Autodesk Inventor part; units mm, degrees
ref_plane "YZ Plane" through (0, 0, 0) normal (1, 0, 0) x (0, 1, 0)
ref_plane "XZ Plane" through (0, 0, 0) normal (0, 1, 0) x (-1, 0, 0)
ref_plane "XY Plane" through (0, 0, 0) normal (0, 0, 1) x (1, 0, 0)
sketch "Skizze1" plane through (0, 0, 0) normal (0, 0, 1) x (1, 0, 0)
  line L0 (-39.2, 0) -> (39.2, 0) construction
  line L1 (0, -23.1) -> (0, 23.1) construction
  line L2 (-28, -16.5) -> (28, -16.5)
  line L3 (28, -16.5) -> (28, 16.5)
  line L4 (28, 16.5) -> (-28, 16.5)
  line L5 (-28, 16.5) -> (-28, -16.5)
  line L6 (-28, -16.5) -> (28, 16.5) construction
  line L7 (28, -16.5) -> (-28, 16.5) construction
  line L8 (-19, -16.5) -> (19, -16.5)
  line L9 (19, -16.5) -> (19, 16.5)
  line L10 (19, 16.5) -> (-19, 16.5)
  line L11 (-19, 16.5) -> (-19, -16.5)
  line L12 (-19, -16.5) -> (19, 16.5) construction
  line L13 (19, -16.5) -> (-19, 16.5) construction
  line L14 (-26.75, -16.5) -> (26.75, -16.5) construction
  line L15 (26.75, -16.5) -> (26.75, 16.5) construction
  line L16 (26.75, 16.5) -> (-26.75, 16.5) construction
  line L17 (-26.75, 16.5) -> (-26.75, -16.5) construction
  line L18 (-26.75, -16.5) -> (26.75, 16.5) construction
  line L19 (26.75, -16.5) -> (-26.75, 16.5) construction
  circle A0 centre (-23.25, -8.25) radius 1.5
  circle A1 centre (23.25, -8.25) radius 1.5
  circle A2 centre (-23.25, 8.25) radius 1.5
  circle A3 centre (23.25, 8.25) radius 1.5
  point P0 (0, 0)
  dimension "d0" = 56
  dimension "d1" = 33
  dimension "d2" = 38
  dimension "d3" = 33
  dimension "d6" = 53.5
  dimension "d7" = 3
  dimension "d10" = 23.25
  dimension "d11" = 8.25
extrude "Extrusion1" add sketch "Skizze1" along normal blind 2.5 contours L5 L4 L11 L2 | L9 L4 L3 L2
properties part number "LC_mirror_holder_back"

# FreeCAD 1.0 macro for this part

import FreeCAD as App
import Part
import Sketcher
from FreeCAD import Vector
Q = App.Units.Quantity

doc = App.newDocument("Part")
body = doc.addObject("PartDesign::Body", "Body")
body.AllowCompound = True

# Sketch on XY plane
sketch1 = body.newObject("Sketcher::SketchObject", "Sketch")
sketch1.AttachmentSupport = (doc.getObject("XY_Plane"), [""])
sketch1.MapMode = "FlatFace"
sketch1.addGeometry([
    Part.LineSegment(Vector(-28, 16.5, 0), Vector(-28, -16.5, 0)),  # 0
    Part.LineSegment(Vector(-28, -16.5, 0), Vector(-19, -16.5, 0)),  # 1
    Part.LineSegment(Vector(-19, -16.5, 0), Vector(-19, 16.5, 0)),  # 2
    Part.LineSegment(Vector(-19, 16.5, 0), Vector(-28, 16.5, 0)),  # 3
    Part.Circle(Vector(-23.2, -8.2, 0), Vector(0, 0, 1), 1.5),  # 4
    Part.Circle(Vector(-23.2, 8.2, 0), Vector(0, 0, 1), 1.5),  # 5
    Part.LineSegment(Vector(19, 16.5, 0), Vector(19, -16.5, 0)),  # 6
    Part.LineSegment(Vector(19, -16.5, 0), Vector(28, -16.5, 0)),  # 7
    Part.LineSegment(Vector(28, -16.5, 0), Vector(28, 16.5, 0)),  # 8
    Part.LineSegment(Vector(28, 16.5, 0), Vector(19, 16.5, 0)),  # 9
    Part.Circle(Vector(23.2, -8.2, 0), Vector(0, 0, 1), 1.5),  # 10
    Part.Circle(Vector(23.2, 8.2, 0), Vector(0, 0, 1), 1.5),  # 11
], False)
sketch1.addConstraint([
    Sketcher.Constraint("Coincident", 0, 2, 1, 1),
    Sketcher.Constraint("Coincident", 1, 2, 2, 1),
    Sketcher.Constraint("Coincident", 2, 2, 3, 1),
    Sketcher.Constraint("Coincident", 3, 2, 0, 1),
    Sketcher.Constraint("Coincident", 6, 2, 7, 1),
    Sketcher.Constraint("Coincident", 7, 2, 8, 1),
    Sketcher.Constraint("Coincident", 8, 2, 9, 1),
    Sketcher.Constraint("Coincident", 9, 2, 6, 1),
    Sketcher.Constraint("Vertical", 0),
    Sketcher.Constraint("Horizontal", 1),
    Sketcher.Constraint("Vertical", 2),
    Sketcher.Constraint("Horizontal", 3),
    Sketcher.Constraint("Vertical", 6),
    Sketcher.Constraint("Horizontal", 7),
    Sketcher.Constraint("Vertical", 8),
    Sketcher.Constraint("Horizontal", 9),
    Sketcher.Constraint("Equal", 4, 5),
    Sketcher.Constraint("Equal", 5, 10),
    Sketcher.Constraint("Equal", 10, 11),
    Sketcher.Constraint("Symmetric", 5, 3, 10, 3, -1, 1),
    Sketcher.Constraint("Symmetric", 4, 3, 11, 3, -1, 1),
    Sketcher.Constraint("Symmetric", 2, 2, 6, 2, -1, 1),
    Sketcher.Constraint("Symmetric", 0, 2, 8, 2, -1, 1),
    Sketcher.Constraint("Symmetric", 4, 3, 10, 3, -2),
    Sketcher.Constraint("Horizontal", 1, 2, 6, 2),
    Sketcher.Constraint("Diameter", 4, Q("3 mm")),
    Sketcher.Constraint("DistanceY", 0, 2, 0, 1, Q("33 mm")),
    Sketcher.Constraint("DistanceX", 1, 2, 6, 2, Q("38 mm")),
    Sketcher.Constraint("DistanceX", 1, 1, 1, 2, Q("9 mm")),
    Sketcher.Constraint("DistanceX", 4, 3, -1, 1, Q("23.25 mm")),
    Sketcher.Constraint("DistanceY", 4, 3, -1, 1, Q("8.25 mm")),
])
pad1 = body.newObject("PartDesign::Pad", "Pad")
pad1.Profile = sketch1
pad1.Length = 2.5

doc.recompute()
